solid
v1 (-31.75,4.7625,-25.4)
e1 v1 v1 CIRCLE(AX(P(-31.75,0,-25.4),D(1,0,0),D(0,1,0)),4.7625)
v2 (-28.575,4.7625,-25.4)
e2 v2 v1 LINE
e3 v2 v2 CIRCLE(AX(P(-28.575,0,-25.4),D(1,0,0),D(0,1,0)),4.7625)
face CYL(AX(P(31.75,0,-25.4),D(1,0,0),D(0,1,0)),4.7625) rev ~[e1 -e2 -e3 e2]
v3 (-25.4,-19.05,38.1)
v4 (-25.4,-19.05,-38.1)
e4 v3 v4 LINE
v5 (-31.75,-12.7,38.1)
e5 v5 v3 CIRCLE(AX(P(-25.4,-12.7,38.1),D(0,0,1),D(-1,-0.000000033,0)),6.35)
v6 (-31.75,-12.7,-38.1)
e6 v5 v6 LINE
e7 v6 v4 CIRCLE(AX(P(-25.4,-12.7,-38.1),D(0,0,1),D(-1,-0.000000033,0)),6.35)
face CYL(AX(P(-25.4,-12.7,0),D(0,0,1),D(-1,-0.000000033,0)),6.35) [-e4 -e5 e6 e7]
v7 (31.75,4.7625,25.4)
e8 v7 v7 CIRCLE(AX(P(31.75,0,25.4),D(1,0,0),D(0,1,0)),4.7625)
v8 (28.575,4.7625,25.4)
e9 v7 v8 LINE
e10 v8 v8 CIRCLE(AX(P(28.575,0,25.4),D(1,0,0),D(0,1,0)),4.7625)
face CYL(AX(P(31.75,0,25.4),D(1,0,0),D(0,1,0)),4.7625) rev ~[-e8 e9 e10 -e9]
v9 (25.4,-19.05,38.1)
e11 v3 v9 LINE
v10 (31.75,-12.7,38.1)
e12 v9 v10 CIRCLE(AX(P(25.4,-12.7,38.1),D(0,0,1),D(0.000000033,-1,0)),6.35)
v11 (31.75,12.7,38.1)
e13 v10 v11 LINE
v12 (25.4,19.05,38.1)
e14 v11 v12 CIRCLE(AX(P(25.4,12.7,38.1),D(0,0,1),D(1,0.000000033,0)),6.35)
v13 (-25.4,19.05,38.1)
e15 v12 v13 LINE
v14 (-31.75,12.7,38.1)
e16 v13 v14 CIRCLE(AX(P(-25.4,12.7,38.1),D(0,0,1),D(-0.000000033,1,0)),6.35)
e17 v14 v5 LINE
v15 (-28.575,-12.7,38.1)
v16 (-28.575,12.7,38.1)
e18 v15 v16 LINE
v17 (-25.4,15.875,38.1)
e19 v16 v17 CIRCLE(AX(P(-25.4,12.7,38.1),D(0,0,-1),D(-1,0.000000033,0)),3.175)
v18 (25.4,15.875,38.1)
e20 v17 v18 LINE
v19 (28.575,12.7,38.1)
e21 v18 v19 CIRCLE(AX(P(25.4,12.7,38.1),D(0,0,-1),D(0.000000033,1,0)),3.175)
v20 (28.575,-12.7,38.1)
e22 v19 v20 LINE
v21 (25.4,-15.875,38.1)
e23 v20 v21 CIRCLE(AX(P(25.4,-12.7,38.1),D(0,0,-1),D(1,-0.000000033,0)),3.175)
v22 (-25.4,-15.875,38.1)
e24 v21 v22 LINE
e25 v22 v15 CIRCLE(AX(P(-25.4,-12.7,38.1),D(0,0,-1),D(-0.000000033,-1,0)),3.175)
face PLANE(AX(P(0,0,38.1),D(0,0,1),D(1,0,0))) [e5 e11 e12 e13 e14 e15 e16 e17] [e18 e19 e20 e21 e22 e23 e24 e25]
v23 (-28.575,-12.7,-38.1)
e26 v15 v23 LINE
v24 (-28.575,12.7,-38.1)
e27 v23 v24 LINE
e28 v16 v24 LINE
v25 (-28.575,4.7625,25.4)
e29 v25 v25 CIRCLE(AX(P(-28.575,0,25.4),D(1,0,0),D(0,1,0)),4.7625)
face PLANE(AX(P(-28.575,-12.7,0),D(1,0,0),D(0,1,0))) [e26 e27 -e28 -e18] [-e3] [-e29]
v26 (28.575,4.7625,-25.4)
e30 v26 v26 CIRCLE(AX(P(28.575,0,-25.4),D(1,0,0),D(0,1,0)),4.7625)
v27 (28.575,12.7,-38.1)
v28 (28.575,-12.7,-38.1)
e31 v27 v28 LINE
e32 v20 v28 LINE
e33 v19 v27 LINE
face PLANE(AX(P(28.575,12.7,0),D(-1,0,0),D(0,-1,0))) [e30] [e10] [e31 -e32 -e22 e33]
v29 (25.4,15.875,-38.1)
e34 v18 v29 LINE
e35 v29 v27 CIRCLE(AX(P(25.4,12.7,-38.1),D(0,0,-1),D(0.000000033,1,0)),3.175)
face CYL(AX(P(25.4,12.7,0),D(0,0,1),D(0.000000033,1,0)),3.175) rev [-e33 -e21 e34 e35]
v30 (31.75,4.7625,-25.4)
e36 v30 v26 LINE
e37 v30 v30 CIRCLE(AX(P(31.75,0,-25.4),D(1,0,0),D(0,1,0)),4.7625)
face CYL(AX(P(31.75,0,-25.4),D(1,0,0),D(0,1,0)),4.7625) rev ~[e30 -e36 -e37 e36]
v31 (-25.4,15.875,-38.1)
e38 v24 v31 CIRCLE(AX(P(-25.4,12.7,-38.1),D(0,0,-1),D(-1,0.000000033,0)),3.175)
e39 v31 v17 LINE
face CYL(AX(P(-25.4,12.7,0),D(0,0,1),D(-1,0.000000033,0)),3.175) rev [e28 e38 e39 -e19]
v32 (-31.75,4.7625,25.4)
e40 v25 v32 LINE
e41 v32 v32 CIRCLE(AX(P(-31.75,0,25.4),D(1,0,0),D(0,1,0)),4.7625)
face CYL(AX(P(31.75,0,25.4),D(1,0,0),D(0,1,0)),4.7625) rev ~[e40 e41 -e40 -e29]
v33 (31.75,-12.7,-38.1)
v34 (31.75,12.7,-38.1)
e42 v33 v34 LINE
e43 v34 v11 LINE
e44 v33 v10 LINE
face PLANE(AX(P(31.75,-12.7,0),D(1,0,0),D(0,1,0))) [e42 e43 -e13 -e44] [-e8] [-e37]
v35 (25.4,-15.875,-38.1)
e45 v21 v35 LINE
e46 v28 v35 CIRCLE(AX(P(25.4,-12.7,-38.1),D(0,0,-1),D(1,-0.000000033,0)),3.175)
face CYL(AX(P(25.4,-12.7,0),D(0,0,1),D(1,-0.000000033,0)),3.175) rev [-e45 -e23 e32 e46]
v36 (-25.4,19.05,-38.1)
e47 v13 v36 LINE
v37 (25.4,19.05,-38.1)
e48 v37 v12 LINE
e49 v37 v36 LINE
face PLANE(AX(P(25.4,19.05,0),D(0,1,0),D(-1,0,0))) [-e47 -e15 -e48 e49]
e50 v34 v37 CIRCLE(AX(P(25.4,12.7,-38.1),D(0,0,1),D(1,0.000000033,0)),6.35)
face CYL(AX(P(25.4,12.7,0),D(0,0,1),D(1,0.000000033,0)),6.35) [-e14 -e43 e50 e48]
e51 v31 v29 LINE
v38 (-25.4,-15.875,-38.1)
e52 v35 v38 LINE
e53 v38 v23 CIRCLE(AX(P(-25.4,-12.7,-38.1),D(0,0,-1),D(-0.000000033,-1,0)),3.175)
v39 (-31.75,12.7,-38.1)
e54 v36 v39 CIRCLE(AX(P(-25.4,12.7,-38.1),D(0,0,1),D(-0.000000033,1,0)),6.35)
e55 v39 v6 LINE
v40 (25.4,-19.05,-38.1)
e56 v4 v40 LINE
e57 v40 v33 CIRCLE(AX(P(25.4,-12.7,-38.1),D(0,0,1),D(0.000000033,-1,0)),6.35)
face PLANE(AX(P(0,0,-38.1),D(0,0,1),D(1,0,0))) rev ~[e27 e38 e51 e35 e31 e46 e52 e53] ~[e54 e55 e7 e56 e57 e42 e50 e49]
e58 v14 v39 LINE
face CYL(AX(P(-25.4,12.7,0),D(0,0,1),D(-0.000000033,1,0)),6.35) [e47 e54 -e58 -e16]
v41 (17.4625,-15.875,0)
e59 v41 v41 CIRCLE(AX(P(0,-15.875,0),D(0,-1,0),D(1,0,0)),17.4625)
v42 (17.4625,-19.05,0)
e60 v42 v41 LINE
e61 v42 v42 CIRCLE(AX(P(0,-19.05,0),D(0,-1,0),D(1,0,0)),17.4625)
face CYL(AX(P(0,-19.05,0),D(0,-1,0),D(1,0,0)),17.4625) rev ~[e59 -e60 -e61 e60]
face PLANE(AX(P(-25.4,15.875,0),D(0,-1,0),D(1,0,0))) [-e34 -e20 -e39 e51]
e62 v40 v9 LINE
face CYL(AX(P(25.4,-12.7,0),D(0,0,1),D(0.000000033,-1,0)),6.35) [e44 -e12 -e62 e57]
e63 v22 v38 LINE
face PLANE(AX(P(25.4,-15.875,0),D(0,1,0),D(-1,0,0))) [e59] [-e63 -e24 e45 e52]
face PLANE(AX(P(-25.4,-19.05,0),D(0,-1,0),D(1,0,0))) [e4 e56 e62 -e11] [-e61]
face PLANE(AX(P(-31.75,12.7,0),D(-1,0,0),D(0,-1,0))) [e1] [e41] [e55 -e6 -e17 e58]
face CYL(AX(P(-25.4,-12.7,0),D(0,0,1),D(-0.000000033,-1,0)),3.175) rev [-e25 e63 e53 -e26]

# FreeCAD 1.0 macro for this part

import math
import FreeCAD as App
import Part
import Sketcher

V = App.Vector
Q = App.Units.Quantity

doc = App.newDocument("Part")
body = doc.addObject("PartDesign::Body", "Body")

# Sketch on XY plane
sketch1 = body.newObject("Sketcher::SketchObject", "Sketch")
sketch1.AttachmentSupport = (doc.getObject("XY_Plane"), [""])
sketch1.MapMode = "FlatFace"
sketch1.addGeometry(Part.LineSegment(V(-25.4, -19.05, 0), V(25.4, -19.05, 0)), False)
sketch1.addGeometry(Part.ArcOfCircle(Part.Circle(V(25.4, -12.7, 0), V(0, 0, 1), 6.35), math.radians(-89.999998), math.radians(-0.000002)), False)
sketch1.addGeometry(Part.LineSegment(V(31.75, -12.7, 0), V(31.75, 12.7, 0)), False)
sketch1.addGeometry(Part.ArcOfCircle(Part.Circle(V(25.4, 12.7, 0), V(0, 0, 1), 6.35), math.radians(0.000002), math.radians(89.999998)), False)
sketch1.addGeometry(Part.LineSegment(V(25.4, 19.05, 0), V(-25.4, 19.05, 0)), False)
sketch1.addGeometry(Part.ArcOfCircle(Part.Circle(V(-25.4, 12.7, 0), V(0, 0, 1), 6.35), math.radians(90.000002), math.radians(179.999998)), False)
sketch1.addGeometry(Part.LineSegment(V(-31.75, 12.7, 0), V(-31.75, -12.7, 0)), False)
sketch1.addGeometry(Part.ArcOfCircle(Part.Circle(V(-25.4, -12.7, 0), V(0, 0, 1), 6.35), math.radians(-179.999998), math.radians(-90.000002)), False)
sketch1.addGeometry(Part.ArcOfCircle(Part.Circle(V(-25.4, 12.7, 0), V(0, 0, 1), 3.175), math.radians(90.000002), math.radians(179.999998)), False)
sketch1.addGeometry(Part.LineSegment(V(-25.4, 15.875, 0), V(25.4, 15.875, 0)), False)
sketch1.addGeometry(Part.ArcOfCircle(Part.Circle(V(25.4, 12.7, 0), V(0, 0, 1), 3.175), math.radians(0.000002), math.radians(89.999998)), False)
sketch1.addGeometry(Part.LineSegment(V(28.575, 12.7, 0), V(28.575, -12.7, 0)), False)
sketch1.addGeometry(Part.ArcOfCircle(Part.Circle(V(25.4, -12.7, 0), V(0, 0, 1), 3.175), math.radians(-89.999998), math.radians(-0.000002)), False)
sketch1.addGeometry(Part.LineSegment(V(25.4, -15.875, 0), V(-25.4, -15.875, 0)), False)
sketch1.addGeometry(Part.ArcOfCircle(Part.Circle(V(-25.4, -12.7, 0), V(0, 0, 1), 3.175), math.radians(-179.999998), math.radians(-90.000002)), False)
sketch1.addGeometry(Part.LineSegment(V(-28.575, -12.7, 0), V(-28.575, 12.7, 0)), False)
sketch1.addConstraint(Sketcher.Constraint("Tangent", 0, 2, 1, 1))
sketch1.addConstraint(Sketcher.Constraint("Tangent", 1, 2, 2, 1))
sketch1.addConstraint(Sketcher.Constraint("Tangent", 2, 2, 3, 1))
sketch1.addConstraint(Sketcher.Constraint("Tangent", 3, 2, 4, 1))
sketch1.addConstraint(Sketcher.Constraint("Tangent", 4, 2, 5, 1))
sketch1.addConstraint(Sketcher.Constraint("Tangent", 5, 2, 6, 1))
sketch1.addConstraint(Sketcher.Constraint("Tangent", 6, 2, 7, 1))
sketch1.addConstraint(Sketcher.Constraint("Tangent", 7, 2, 0, 1))
sketch1.addConstraint(Sketcher.Constraint("Tangent", 8, 1, 9, 1))
sketch1.addConstraint(Sketcher.Constraint("Tangent", 9, 2, 10, 2))
sketch1.addConstraint(Sketcher.Constraint("Tangent", 10, 1, 11, 1))
sketch1.addConstraint(Sketcher.Constraint("Tangent", 11, 2, 12, 2))
sketch1.addConstraint(Sketcher.Constraint("Tangent", 12, 1, 13, 1))
sketch1.addConstraint(Sketcher.Constraint("Tangent", 13, 2, 14, 2))
sketch1.addConstraint(Sketcher.Constraint("Tangent", 14, 1, 15, 1))
sketch1.addConstraint(Sketcher.Constraint("Tangent", 15, 2, 8, 2))
sketch1.addConstraint(Sketcher.Constraint("Horizontal", 0))
sketch1.addConstraint(Sketcher.Constraint("Vertical", 2))
sketch1.addConstraint(Sketcher.Constraint("Horizontal", 4))
sketch1.addConstraint(Sketcher.Constraint("Vertical", 6))
sketch1.addConstraint(Sketcher.Constraint("Horizontal", 9))
sketch1.addConstraint(Sketcher.Constraint("Vertical", 11))
sketch1.addConstraint(Sketcher.Constraint("Horizontal", 13))
sketch1.addConstraint(Sketcher.Constraint("Vertical", 15))
sketch1.addConstraint(Sketcher.Constraint("Coincident", 8, 3, 5, 3))
sketch1.addConstraint(Sketcher.Constraint("Coincident", 10, 3, 3, 3))
sketch1.addConstraint(Sketcher.Constraint("Coincident", 12, 3, 1, 3))
sketch1.addConstraint(Sketcher.Constraint("Equal", 1, 3))
sketch1.addConstraint(Sketcher.Constraint("Equal", 3, 5))
sketch1.addConstraint(Sketcher.Constraint("Equal", 5, 7))
sketch1.addConstraint(Sketcher.Constraint("Equal", 12, 14))
sketch1.addConstraint(Sketcher.Constraint("Symmetric", 1, 3, 5, 3, -1, 1))
sketch1.addConstraint(Sketcher.Constraint("DistanceX", 0, 1, 0, 2, Q("2 in")))
sketch1.addConstraint(Sketcher.Constraint("DistanceY", 2, 1, 2, 2, Q("1 in")))
sketch1.addConstraint(Sketcher.Constraint("Radius", 1, Q("0.25 in")))
sketch1.addConstraint(Sketcher.Constraint("Radius", 8, Q("0.125 in")))
pad1 = body.newObject("PartDesign::Pad", "Pad")
pad1.Profile = sketch1
pad1.Length = Q("3 in")
pad1.Midplane = True

# Sketch on YZ plane
sketch2 = body.newObject("Sketcher::SketchObject", "Sketch001")
sketch2.AttachmentSupport = (doc.getObject("YZ_Plane"), [""])
sketch2.MapMode = "FlatFace"
sketch2.AttachmentOffset = App.Placement(V(0, 0, 1.25 * 25.4), App.Rotation())
sketch2.addGeometry(Part.Circle(V(0, 25.4, 0), V(0, 0, 1), 4.7625), False)
sketch2.addGeometry(Part.Circle(V(0, -25.4, 0), V(0, 0, 1), 4.7625), False)
sketch2.addConstraint(Sketcher.Constraint("Equal", 0, 1))
sketch2.addConstraint(Sketcher.Constraint("Symmetric", 0, 3, 1, 3, -1, 1))
sketch2.addConstraint(Sketcher.Constraint("PointOnObject", 0, 3, -2))
sketch2.addConstraint(Sketcher.Constraint("Diameter", 0, Q("0.375 in")))
sketch2.addConstraint(Sketcher.Constraint("DistanceY", -1, 1, 0, 3, Q("1 in")))
pocket1 = body.newObject("PartDesign::Pocket", "Pocket")
pocket1.Profile = sketch2
pocket1.Type = "ThroughAll"

# Sketch on XZ plane
sketch3 = body.newObject("Sketcher::SketchObject", "Sketch002")
sketch3.AttachmentSupport = (doc.getObject("XZ_Plane"), [""])
sketch3.MapMode = "FlatFace"
sketch3.AttachmentOffset = App.Placement(V(0, 0, 0.75 * 25.4), App.Rotation())
sketch3.addGeometry(Part.Circle(V(0, 0, 0), V(0, 0, 1), 17.4625), False)
sketch3.addConstraint(Sketcher.Constraint("Coincident", 0, 3, -1, 1))
sketch3.addConstraint(Sketcher.Constraint("Diameter", 0, Q("1.375 in")))
pocket2 = body.newObject("PartDesign::Pocket", "Pocket001")
pocket2.Profile = sketch3
pocket2.Length = Q("0.125 in")

doc.recompute()
